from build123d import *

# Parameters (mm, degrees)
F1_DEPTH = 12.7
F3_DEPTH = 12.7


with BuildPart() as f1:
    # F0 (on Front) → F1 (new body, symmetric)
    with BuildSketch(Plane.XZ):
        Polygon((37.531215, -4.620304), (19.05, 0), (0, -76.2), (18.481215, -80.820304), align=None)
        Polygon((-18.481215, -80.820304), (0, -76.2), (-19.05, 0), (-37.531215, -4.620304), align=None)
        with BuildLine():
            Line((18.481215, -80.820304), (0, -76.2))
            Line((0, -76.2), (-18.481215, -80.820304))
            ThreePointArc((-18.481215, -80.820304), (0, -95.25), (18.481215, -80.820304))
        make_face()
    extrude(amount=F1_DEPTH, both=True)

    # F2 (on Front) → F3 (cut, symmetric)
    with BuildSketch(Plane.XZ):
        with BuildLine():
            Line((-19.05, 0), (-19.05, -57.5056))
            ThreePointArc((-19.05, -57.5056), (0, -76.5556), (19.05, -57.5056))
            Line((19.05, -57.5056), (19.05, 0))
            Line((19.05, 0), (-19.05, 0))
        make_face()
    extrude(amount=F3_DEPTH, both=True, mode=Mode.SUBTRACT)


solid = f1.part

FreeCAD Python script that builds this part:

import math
import FreeCAD as App
import Part
import Sketcher

V = App.Vector
Q = App.Units.Quantity

doc = App.newDocument("Part")
body = doc.addObject("PartDesign::Body", "Body")

# Sketch on XZ plane
sketch1 = body.newObject("Sketcher::SketchObject", "Sketch")
sketch1.AttachmentSupport = (doc.getObject("XZ_Plane"), [""])
sketch1.MapMode = "FlatFace"
sketch1.addGeometry([
    Part.LineSegment(V(37.531215, -4.620304, 0), V(19.05, 0, 0)),  # 0
    Part.LineSegment(V(19.05, 0, 0), V(0, -76.2, 0)),  # 1
    Part.LineSegment(V(0, -76.2, 0), V(-19.05, 0, 0)),  # 2
    Part.LineSegment(V(-19.05, 0, 0), V(-37.531215, -4.620304, 0)),  # 3
    Part.LineSegment(V(-37.531215, -4.620304, 0), V(-18.481215, -80.820304, 0)),  # 4
    Part.ArcOfCircle(Part.Circle(V(0, -76.199999, 0), V(0, 0, 1), 19.050001), math.radians(-165.963754), math.radians(-14.036246)),  # 5
    Part.LineSegment(V(18.481215, -80.820304, 0), V(37.531215, -4.620304, 0)),  # 6
], False)
sketch1.addConstraint([
    Sketcher.Constraint("Coincident", 0, 2, 1, 1),
    Sketcher.Constraint("Coincident", 1, 2, 2, 1),
    Sketcher.Constraint("Coincident", 2, 2, 3, 1),
    Sketcher.Constraint("Coincident", 3, 2, 4, 1),
    Sketcher.Constraint("Tangent", 4, 2, 5, 1),
    Sketcher.Constraint("Tangent", 5, 2, 6, 1),
    Sketcher.Constraint("Coincident", 6, 2, 0, 1),
    Sketcher.Constraint("Coincident", 1, 2, 5, 3),
    Sketcher.Constraint("Symmetric", 0, 2, 2, 2, -1, 1),
    Sketcher.Constraint("Symmetric", 4, 2, 5, 2, -2),
    Sketcher.Constraint("PointOnObject", 0, 2, -1),
    Sketcher.Constraint("Perpendicular", 0, 1),
    Sketcher.Constraint("Perpendicular", 2, 3),
    Sketcher.Constraint("Perpendicular", 3, 4),
    Sketcher.Constraint("Radius", 5, Q("0.75 in")),
    Sketcher.Constraint("DistanceY", 5, 3, -1, 1, Q("3 in")),
    Sketcher.Constraint("DistanceX", 2, 2, 0, 2, Q("1.5 in")),
])
pad1 = body.newObject("PartDesign::Pad", "Pad")
pad1.Profile = sketch1
pad1.Length = Q("1 in")
pad1.Midplane = True

# Sketch on XZ plane
sketch2 = body.newObject("Sketcher::SketchObject", "Sketch001")
sketch2.AttachmentSupport = (doc.getObject("XZ_Plane"), [""])
sketch2.MapMode = "FlatFace"
sketch2.addGeometry([
    Part.LineSegment(V(-19.05, 0, 0), V(-19.05, -57.5056, 0)),
    Part.ArcOfCircle(Part.Circle(V(0, -57.5056, 0), V(0, 0, 1), 19.05), math.radians(180), math.radians(360)),
    Part.LineSegment(V(19.05, -57.5056, 0), V(19.05, 0, 0)),
    Part.LineSegment(V(19.05, 0, 0), V(-19.05, 0, 0)),
], False)
sketch2.addConstraint([
    Sketcher.Constraint("Tangent", 0, 2, 1, 1),
    Sketcher.Constraint("Tangent", 1, 2, 2, 1),
    Sketcher.Constraint("Coincident", 2, 2, 3, 1),
    Sketcher.Constraint("Coincident", 3, 2, 0, 1),
    Sketcher.Constraint("Vertical", 0),
    Sketcher.Constraint("Vertical", 2),
    Sketcher.Constraint("Horizontal", 3),
    Sketcher.Constraint("Symmetric", 2, 2, 3, 2, -1, 1),
    Sketcher.Constraint("Radius", 1, Q("0.75 in")),
    Sketcher.Constraint("DistanceY", 0, 2, 0, 1, Q("2.264 in")),
])
pocket1 = body.newObject("PartDesign::Pocket", "Pocket")
pocket1.Profile = sketch2
pocket1.Length = Q("1 in")
pocket1.Midplane = True

doc.recompute()
